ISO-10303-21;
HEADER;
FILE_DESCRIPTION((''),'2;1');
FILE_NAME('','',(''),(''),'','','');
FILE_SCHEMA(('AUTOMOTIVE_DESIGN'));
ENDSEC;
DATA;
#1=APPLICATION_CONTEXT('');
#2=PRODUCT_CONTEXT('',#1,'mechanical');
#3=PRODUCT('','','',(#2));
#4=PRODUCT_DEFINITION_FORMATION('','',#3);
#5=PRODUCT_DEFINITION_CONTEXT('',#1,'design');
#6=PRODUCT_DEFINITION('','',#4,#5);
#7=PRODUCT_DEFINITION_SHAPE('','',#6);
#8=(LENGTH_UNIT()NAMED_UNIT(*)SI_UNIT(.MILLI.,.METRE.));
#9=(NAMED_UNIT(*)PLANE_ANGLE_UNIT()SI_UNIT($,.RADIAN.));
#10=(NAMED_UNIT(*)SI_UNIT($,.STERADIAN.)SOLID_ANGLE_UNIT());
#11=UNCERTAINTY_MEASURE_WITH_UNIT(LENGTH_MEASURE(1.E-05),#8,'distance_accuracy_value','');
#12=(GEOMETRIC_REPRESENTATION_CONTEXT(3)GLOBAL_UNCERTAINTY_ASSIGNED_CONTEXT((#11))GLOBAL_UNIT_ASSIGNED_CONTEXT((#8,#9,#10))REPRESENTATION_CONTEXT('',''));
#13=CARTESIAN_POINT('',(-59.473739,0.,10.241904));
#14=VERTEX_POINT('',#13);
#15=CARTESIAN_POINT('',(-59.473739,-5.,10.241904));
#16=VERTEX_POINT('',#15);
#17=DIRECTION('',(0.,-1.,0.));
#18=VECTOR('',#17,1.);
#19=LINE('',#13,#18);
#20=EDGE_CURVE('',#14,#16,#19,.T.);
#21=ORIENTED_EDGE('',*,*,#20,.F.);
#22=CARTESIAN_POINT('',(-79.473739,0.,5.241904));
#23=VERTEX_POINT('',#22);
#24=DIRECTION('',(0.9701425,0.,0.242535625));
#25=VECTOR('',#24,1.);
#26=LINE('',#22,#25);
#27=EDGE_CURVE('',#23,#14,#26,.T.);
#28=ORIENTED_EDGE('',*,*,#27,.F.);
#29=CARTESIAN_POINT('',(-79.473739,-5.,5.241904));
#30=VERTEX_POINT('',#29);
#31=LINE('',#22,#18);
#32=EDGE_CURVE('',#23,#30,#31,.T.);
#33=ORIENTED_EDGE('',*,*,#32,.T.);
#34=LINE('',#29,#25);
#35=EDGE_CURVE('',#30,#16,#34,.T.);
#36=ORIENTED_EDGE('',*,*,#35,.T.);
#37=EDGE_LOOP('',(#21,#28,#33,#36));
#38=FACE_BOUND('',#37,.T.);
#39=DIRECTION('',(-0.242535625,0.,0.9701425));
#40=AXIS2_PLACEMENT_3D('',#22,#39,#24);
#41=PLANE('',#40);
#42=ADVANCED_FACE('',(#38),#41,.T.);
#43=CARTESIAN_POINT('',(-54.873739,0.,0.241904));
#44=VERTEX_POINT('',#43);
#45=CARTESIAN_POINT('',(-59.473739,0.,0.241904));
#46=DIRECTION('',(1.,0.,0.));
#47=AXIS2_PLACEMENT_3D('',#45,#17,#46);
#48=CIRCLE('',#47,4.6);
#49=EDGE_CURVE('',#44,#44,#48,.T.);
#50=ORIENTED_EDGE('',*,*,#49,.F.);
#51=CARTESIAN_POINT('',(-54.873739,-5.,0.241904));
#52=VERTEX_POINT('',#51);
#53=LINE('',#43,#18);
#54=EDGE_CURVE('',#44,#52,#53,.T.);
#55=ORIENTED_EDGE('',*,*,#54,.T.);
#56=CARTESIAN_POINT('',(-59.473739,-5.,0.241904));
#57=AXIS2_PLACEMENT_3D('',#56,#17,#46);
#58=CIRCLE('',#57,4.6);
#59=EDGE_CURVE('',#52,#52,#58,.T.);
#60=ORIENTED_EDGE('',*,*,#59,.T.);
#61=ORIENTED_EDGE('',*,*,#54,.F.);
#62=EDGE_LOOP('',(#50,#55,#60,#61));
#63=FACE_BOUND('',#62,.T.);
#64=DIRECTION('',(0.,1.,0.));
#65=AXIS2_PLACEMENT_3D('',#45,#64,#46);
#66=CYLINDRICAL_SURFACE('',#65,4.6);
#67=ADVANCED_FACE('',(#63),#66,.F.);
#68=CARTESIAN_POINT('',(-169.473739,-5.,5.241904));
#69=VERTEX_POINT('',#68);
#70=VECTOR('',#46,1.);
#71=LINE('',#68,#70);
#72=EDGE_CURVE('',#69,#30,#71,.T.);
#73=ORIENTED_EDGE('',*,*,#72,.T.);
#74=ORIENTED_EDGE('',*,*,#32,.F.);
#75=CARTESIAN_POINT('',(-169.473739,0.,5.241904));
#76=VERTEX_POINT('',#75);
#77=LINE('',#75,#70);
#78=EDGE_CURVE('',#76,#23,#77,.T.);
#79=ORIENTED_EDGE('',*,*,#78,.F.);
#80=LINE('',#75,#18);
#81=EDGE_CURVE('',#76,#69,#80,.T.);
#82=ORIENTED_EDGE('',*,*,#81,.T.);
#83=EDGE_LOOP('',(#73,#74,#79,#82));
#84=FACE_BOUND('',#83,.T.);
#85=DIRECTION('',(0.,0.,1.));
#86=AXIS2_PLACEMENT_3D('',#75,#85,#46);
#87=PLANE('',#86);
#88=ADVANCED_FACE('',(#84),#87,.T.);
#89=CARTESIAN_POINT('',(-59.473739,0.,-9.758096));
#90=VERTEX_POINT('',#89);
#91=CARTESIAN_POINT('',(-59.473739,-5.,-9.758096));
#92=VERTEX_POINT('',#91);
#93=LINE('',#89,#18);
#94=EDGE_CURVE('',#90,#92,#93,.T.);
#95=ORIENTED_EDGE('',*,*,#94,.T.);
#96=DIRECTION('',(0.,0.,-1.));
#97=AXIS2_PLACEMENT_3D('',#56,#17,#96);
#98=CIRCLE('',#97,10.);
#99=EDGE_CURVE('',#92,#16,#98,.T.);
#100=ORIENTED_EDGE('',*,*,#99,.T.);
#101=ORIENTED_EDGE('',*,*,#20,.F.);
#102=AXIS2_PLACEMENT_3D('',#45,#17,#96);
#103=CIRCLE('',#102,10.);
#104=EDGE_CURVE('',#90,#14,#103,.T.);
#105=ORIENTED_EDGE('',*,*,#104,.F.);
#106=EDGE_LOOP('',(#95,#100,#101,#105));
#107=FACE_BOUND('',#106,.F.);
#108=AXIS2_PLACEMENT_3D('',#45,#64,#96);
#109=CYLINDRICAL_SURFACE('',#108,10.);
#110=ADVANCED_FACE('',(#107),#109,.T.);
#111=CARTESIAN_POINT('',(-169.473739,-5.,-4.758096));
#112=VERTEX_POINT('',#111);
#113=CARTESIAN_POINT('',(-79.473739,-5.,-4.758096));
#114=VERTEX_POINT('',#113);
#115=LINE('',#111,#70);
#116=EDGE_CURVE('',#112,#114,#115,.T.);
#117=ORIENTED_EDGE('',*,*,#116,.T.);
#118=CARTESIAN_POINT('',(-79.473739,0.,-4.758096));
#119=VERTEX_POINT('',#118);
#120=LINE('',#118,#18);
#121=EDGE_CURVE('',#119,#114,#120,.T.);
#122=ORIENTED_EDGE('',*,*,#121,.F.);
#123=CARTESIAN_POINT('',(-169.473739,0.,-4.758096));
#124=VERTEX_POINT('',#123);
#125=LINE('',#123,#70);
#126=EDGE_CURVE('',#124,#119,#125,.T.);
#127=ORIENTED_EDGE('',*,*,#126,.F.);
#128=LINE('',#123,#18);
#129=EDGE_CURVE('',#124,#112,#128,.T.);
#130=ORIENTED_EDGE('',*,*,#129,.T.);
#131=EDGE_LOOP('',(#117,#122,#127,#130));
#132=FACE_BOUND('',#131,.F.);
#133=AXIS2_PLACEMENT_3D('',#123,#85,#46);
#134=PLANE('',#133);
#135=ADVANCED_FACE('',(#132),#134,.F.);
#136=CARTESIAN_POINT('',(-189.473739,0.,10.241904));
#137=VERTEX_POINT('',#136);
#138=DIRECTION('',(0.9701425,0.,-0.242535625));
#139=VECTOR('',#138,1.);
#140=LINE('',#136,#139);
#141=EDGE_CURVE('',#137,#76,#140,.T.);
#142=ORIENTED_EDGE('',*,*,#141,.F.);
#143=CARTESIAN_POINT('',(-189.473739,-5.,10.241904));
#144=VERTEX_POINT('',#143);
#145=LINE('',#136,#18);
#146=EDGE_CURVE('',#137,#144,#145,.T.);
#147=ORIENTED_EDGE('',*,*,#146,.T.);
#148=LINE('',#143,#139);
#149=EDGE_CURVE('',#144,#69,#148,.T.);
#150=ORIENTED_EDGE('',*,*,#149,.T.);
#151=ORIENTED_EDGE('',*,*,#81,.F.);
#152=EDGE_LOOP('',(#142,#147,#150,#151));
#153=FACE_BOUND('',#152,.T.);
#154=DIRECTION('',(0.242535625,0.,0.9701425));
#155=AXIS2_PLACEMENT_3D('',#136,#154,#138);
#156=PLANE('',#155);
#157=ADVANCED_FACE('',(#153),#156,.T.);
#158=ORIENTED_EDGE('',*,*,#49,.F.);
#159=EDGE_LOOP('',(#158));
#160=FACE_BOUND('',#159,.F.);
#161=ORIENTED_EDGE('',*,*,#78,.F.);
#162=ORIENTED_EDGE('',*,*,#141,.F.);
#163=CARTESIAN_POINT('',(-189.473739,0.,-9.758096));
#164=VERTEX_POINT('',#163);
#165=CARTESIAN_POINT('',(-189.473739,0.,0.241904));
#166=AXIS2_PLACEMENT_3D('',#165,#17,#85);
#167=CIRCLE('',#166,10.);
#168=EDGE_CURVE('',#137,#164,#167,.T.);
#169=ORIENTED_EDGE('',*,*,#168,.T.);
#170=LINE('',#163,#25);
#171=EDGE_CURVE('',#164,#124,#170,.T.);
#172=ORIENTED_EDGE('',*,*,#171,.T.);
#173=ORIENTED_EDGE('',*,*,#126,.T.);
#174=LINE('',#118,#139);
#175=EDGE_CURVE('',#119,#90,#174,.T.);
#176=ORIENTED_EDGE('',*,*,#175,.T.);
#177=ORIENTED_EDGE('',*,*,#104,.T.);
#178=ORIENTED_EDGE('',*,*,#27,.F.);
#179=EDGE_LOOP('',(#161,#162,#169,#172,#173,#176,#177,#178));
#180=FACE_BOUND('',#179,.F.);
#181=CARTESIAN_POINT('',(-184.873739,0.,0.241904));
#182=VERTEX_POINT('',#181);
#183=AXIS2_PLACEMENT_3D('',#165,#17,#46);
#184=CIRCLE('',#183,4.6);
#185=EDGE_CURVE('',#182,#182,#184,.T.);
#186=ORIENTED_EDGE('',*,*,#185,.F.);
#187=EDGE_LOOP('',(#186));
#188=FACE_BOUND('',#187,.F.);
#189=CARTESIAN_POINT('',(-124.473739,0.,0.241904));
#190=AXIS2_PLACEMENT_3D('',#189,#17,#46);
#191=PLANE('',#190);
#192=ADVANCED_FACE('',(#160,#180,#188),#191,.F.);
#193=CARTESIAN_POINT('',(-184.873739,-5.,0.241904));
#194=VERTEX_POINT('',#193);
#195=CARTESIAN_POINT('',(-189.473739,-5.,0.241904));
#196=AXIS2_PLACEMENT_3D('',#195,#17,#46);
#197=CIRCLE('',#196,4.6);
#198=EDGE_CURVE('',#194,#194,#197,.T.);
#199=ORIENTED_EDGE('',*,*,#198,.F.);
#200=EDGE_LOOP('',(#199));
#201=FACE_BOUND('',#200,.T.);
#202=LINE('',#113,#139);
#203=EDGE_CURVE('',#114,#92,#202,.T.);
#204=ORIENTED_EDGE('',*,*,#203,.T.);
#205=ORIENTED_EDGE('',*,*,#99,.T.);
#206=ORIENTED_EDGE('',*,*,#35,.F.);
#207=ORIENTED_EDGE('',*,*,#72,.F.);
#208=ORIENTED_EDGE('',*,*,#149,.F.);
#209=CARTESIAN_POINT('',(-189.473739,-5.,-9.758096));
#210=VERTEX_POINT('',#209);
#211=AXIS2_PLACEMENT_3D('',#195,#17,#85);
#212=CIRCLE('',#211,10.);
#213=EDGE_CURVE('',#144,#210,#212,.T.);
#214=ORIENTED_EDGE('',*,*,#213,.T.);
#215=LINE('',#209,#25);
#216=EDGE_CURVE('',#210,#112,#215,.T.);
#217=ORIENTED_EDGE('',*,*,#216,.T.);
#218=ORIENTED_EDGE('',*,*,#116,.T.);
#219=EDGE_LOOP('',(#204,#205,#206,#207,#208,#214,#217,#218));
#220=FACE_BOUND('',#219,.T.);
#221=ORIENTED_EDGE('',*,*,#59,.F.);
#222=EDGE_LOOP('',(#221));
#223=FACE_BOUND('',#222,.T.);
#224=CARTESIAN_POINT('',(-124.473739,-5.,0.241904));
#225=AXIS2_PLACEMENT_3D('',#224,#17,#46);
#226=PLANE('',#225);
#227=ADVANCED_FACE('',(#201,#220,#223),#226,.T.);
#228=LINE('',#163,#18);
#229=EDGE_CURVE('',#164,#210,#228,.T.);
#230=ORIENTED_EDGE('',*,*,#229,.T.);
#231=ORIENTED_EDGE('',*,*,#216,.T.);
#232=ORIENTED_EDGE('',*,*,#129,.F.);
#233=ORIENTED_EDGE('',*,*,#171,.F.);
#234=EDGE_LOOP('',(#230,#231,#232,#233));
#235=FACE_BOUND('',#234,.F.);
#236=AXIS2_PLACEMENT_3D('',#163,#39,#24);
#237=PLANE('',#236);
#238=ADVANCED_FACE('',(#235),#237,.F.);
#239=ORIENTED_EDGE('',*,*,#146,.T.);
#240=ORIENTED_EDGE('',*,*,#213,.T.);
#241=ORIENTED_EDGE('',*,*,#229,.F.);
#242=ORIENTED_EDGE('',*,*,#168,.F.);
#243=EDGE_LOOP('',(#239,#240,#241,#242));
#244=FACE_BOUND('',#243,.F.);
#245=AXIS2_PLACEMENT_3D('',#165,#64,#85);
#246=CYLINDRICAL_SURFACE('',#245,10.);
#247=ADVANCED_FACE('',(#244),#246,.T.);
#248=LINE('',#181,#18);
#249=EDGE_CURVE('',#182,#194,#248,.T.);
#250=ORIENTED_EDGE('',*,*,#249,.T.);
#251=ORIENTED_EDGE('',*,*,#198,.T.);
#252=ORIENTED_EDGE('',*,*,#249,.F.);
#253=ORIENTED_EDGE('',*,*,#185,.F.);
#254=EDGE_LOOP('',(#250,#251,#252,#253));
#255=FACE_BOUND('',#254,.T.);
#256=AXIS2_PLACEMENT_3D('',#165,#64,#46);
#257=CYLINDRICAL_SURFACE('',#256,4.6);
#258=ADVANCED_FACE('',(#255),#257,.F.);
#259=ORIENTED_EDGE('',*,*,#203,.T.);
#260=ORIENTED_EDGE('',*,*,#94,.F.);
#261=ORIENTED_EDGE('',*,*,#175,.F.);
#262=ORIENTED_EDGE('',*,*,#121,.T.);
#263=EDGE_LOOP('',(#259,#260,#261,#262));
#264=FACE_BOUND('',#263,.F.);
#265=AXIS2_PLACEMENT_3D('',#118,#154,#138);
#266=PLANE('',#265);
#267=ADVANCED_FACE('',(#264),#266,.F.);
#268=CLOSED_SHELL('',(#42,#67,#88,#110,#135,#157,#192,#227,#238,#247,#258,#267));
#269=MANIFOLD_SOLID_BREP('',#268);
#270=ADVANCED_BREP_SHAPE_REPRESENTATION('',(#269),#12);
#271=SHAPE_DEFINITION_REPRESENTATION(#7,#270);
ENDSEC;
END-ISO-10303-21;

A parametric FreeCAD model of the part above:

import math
import FreeCAD as App
import Part
import Sketcher

V = App.Vector

doc = App.newDocument("Part")
body = doc.addObject("PartDesign::Body", "Body")

# Sketch on XZ plane
sketch1 = body.newObject("Sketcher::SketchObject", "Sketch")
sketch1.AttachmentSupport = (doc.getObject("XZ_Plane"), [""])
sketch1.MapMode = "FlatFace"
sketch1.addGeometry(Part.ArcOfCircle(Part.Circle(V(-59.473739, 0.241904, 0), V(0, 0, 1), 10), math.radians(-90), math.radians(90)), False)
sketch1.addGeometry(Part.LineSegment(V(-59.473739, 10.241904, 0), V(-79.473739, 5.241904, 0)), False)
sketch1.addGeometry(Part.LineSegment(V(-79.473739, 5.241904, 0), V(-169.473739, 5.241904, 0)), False)
sketch1.addGeometry(Part.LineSegment(V(-169.473739, 5.241904, 0), V(-189.473739, 10.241904, 0)), False)
sketch1.addGeometry(Part.ArcOfCircle(Part.Circle(V(-189.473739, 0.241904, 0), V(0, 0, 1), 10), math.radians(90), math.radians(270)), False)
sketch1.addGeometry(Part.LineSegment(V(-189.473739, -9.758096, 0), V(-169.473739, -4.758096, 0)), False)
sketch1.addGeometry(Part.LineSegment(V(-169.473739, -4.758096, 0), V(-79.473739, -4.758096, 0)), False)
sketch1.addGeometry(Part.LineSegment(V(-79.473739, -4.758096, 0), V(-59.473739, -9.758096, 0)), False)
sketch1.addGeometry(Part.Circle(V(-189.473739, 0.241904, 0), V(0, 0, 1), 4.6), False)
sketch1.addGeometry(Part.Circle(V(-59.473739, 0.241904, 0), V(0, 0, 1), 4.6), False)
sketch1.addConstraint(Sketcher.Constraint("Coincident", 0, 2, 1, 1))
sketch1.addConstraint(Sketcher.Constraint("Coincident", 1, 2, 2, 1))
sketch1.addConstraint(Sketcher.Constraint("Coincident", 2, 2, 3, 1))
sketch1.addConstraint(Sketcher.Constraint("Coincident", 3, 2, 4, 1))
sketch1.addConstraint(Sketcher.Constraint("Coincident", 4, 2, 5, 1))
sketch1.addConstraint(Sketcher.Constraint("Coincident", 5, 2, 6, 1))
sketch1.addConstraint(Sketcher.Constraint("Coincident", 6, 2, 7, 1))
sketch1.addConstraint(Sketcher.Constraint("Coincident", 7, 2, 0, 1))
sketch1.addConstraint(Sketcher.Constraint("Horizontal", 2))
sketch1.addConstraint(Sketcher.Constraint("Horizontal", 6))
sketch1.addConstraint(Sketcher.Constraint("Coincident", 8, 3, 4, 3))
sketch1.addConstraint(Sketcher.Constraint("Coincident", 9, 3, 0, 3))
sketch1.addConstraint(Sketcher.Constraint("Equal", 0, 4))
sketch1.addConstraint(Sketcher.Constraint("Equal", 8, 9))
sketch1.addConstraint(Sketcher.Constraint("Parallel", 1, 5))
sketch1.addConstraint(Sketcher.Constraint("Parallel", 3, 7))
sketch1.addConstraint(Sketcher.Constraint("Horizontal", 0, 3, 4, 3))
sketch1.addConstraint(Sketcher.Constraint("Vertical", 9, 3, 0, 2))
sketch1.addConstraint(Sketcher.Constraint("Vertical", 8, 3, 3, 2))
sketch1.addConstraint(Sketcher.Constraint("Vertical", 3, 2, 4, 2))
sketch1.addConstraint(Sketcher.Constraint("Vertical", 2, 2, 5, 2))
sketch1.addConstraint(Sketcher.Constraint("Vertical", 1, 2, 6, 2))
sketch1.addConstraint(Sketcher.Constraint("Vertical", 0, 2, 7, 2))
sketch1.addConstraint(Sketcher.Constraint("Radius", 0, 10.0))
sketch1.addConstraint(Sketcher.Constraint("Diameter", 8, 9.2))
sketch1.addConstraint(Sketcher.Constraint("DistanceX", 2, 2, 2, 1, 90.0))
sketch1.addConstraint(Sketcher.Constraint("DistanceX", 4, 3, 0, 3, 130.0))
sketch1.addConstraint(Sketcher.Constraint("DistanceY", 0, 3, 1, 2, 5.0))
sketch1.addConstraint(Sketcher.Constraint("DistanceX", 0, 3, -1, 1, 59.473739))
sketch1.addConstraint(Sketcher.Constraint("DistanceY", -1, 1, 0, 3, 0.241904))
pad1 = body.newObject("PartDesign::Pad", "Pad")
pad1.Profile = sketch1
pad1.Length = 5

doc.recompute()
